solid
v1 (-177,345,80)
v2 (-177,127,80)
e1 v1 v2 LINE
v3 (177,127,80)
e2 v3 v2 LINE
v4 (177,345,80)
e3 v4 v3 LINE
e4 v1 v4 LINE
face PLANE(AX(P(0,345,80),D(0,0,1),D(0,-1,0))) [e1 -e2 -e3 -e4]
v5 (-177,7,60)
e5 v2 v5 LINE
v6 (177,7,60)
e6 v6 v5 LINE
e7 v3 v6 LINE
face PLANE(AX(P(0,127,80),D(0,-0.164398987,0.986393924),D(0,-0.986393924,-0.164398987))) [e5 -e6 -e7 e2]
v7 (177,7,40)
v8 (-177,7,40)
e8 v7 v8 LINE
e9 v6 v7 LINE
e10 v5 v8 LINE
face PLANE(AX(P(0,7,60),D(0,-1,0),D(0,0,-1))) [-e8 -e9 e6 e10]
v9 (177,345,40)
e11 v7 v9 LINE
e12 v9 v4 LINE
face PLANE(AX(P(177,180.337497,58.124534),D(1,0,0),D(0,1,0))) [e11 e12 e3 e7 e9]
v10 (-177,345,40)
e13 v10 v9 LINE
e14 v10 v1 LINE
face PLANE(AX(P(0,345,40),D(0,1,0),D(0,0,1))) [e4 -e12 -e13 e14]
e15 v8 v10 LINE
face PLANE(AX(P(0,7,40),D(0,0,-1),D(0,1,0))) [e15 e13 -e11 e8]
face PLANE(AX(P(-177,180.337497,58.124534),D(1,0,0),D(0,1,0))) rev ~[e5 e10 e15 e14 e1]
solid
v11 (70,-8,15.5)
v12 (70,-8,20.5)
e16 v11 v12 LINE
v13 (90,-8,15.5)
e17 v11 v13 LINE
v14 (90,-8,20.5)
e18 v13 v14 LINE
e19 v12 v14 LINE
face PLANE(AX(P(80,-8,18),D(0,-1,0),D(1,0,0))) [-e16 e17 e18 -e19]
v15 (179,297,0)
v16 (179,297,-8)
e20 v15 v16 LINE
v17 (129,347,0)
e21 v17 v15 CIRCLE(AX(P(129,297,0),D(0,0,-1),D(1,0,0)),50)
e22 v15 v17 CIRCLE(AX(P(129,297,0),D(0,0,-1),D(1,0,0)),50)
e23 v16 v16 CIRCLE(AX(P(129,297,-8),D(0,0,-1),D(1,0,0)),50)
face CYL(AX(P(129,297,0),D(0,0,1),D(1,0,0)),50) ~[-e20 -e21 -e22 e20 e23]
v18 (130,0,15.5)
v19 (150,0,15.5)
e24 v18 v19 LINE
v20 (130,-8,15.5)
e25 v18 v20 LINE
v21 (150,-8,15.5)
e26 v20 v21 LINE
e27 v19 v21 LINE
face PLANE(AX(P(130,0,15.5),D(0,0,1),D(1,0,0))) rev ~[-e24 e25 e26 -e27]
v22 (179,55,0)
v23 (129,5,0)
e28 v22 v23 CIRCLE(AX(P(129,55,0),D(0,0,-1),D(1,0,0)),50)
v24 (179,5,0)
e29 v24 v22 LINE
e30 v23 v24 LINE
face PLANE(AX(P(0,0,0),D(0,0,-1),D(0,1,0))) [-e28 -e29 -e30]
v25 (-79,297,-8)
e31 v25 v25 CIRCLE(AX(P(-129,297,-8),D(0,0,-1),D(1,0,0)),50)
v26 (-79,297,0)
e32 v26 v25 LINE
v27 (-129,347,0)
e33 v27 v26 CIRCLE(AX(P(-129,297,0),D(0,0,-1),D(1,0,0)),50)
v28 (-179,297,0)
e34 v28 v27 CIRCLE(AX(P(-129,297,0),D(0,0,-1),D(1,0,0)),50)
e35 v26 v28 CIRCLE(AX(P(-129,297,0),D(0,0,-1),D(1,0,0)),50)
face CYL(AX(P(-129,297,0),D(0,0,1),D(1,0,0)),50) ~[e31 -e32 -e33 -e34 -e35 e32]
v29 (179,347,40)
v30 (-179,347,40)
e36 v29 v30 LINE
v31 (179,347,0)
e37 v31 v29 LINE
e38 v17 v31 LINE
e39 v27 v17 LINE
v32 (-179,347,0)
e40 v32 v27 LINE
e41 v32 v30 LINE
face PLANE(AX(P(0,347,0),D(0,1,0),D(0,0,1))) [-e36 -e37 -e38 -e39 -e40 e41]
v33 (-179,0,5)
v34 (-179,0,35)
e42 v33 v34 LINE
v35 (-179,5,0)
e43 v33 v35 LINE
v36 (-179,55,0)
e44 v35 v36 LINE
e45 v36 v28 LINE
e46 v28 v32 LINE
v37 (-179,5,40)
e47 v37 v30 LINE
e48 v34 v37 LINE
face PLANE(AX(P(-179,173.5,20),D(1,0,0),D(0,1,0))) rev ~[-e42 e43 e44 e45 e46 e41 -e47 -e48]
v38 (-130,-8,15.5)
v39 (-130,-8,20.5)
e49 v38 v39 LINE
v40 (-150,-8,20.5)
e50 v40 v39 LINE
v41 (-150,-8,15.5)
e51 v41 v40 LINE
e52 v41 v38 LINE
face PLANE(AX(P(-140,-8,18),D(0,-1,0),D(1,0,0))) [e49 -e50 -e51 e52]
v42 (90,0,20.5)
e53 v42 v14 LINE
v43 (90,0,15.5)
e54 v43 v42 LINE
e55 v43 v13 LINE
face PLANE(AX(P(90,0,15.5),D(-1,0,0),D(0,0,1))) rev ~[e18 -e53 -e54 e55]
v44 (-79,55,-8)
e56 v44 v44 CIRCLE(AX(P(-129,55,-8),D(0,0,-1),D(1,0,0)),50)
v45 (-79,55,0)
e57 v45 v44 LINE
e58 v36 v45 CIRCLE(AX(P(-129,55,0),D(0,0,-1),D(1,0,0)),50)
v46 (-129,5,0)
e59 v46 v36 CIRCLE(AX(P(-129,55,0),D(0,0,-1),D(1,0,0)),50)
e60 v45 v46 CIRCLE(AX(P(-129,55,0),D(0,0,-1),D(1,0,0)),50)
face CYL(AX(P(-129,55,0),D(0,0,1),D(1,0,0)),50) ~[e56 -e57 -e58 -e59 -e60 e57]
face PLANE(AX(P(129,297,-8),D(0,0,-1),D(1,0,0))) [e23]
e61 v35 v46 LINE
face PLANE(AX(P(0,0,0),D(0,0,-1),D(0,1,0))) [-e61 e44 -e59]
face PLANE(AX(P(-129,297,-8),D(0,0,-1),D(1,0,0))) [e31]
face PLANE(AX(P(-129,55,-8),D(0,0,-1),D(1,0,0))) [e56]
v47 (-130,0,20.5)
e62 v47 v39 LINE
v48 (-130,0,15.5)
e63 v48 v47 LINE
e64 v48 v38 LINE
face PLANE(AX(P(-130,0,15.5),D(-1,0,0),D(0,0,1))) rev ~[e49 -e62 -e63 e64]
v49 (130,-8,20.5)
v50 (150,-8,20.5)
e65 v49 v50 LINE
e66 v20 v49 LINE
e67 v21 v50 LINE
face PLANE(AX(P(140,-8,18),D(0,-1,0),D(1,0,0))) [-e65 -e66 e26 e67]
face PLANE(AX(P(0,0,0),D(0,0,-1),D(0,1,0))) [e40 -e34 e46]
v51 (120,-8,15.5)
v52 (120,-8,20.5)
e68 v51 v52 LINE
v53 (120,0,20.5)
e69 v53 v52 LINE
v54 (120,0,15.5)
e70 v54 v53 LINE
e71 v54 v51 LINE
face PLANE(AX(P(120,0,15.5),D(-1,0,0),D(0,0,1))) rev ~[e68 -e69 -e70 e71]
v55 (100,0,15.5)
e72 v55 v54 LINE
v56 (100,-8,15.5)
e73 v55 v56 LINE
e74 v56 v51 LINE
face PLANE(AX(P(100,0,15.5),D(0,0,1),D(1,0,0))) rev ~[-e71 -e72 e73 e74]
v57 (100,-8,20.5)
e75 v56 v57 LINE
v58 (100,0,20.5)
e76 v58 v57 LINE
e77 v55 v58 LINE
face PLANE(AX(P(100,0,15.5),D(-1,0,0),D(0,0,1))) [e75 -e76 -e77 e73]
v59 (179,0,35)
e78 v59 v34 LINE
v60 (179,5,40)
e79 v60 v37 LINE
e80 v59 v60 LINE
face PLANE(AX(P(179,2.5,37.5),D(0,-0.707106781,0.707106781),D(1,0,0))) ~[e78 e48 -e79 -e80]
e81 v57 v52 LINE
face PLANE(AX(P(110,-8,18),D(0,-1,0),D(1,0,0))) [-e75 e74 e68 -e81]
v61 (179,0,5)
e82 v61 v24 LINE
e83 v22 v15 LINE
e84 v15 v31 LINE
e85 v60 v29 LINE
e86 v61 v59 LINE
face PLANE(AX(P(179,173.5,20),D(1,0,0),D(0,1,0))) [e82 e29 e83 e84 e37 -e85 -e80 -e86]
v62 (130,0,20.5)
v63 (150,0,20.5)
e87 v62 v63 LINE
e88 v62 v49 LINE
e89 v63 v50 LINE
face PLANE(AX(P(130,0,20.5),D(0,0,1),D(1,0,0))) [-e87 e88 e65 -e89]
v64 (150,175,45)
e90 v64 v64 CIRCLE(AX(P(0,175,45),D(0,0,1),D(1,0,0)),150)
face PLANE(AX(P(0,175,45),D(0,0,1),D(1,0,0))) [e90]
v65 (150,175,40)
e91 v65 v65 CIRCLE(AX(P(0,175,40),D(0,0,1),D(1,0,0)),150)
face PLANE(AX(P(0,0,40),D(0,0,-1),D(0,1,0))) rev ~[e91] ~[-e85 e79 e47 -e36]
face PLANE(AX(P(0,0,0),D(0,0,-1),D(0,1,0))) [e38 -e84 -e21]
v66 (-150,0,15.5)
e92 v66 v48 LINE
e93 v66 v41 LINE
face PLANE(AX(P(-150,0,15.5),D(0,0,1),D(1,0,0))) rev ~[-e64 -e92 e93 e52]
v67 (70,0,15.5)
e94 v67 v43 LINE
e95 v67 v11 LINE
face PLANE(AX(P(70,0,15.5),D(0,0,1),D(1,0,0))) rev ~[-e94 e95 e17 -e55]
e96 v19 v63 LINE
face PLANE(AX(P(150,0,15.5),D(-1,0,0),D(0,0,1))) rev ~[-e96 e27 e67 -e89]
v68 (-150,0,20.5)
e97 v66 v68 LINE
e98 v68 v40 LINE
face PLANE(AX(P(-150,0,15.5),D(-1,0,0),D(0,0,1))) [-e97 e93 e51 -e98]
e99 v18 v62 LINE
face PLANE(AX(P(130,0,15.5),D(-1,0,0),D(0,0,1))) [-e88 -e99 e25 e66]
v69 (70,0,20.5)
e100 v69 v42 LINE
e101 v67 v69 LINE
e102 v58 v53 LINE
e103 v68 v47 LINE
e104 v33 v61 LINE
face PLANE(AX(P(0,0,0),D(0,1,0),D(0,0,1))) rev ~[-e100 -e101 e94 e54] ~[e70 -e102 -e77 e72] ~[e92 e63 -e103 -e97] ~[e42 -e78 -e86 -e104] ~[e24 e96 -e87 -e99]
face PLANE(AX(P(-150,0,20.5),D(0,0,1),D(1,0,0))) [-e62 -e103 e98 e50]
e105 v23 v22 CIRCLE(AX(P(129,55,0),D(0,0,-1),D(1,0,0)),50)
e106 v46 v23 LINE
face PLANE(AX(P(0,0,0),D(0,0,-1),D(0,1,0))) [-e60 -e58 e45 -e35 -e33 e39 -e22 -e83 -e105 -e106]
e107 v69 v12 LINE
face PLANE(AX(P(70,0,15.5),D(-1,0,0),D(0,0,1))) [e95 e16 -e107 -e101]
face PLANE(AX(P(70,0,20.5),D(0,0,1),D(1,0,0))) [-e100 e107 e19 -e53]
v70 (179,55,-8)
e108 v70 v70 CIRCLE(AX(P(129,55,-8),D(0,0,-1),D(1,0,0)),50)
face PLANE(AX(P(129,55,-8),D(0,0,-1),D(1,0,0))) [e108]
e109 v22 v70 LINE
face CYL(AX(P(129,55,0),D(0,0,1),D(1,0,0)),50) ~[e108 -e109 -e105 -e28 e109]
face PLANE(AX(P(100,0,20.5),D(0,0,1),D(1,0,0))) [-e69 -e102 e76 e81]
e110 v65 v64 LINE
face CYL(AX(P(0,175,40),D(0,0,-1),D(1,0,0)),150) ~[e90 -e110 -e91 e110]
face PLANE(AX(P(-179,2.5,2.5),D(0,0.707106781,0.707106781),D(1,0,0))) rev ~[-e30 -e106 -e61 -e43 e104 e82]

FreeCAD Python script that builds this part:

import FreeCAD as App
import Part
import Sketcher


def edges_at(feature, points):
    """Names of the edges that pass closest to the given points."""
    edges = feature.Shape.Edges
    near = lambda p: min(range(len(edges)), key=lambda i: edges[i].distToShape(Part.Vertex(*p))[0])
    return sorted({f"Edge{near(p) + 1}" for p in points})

doc = App.newDocument("Part")
body = doc.addObject("PartDesign::Body", "Body")

# Sketch on YZ plane
sketch1 = doc.addObject("Sketcher::SketchObject", "Sketch")
body.addObject(sketch1)
sketch1.AttachmentSupport = (doc.YZ_Plane, [""])
sketch1.MapMode = "FlatFace"
sketch1.addGeometry([
    Part.LineSegment(App.Vector(0, 40, 0), App.Vector(0, 0, 0)),
    Part.LineSegment(App.Vector(0, 0, 0), App.Vector(347, 0, 0)),
    Part.LineSegment(App.Vector(347, 0, 0), App.Vector(347, 40, 0)),
    Part.LineSegment(App.Vector(347, 40, 0), App.Vector(0, 40, 0)),
], False)
sketch1.addConstraint([
    Sketcher.Constraint("Coincident", 0, 2, 1, 1),
    Sketcher.Constraint("Coincident", 1, 2, 2, 1),
    Sketcher.Constraint("Coincident", 2, 2, 3, 1),
    Sketcher.Constraint("Coincident", 3, 2, 0, 1),
    Sketcher.Constraint("Vertical", 0),
    Sketcher.Constraint("Horizontal", 1),
    Sketcher.Constraint("Vertical", 2),
    Sketcher.Constraint("Horizontal", 3),
    Sketcher.Constraint("Coincident", 0, 2, -1, 1),
    Sketcher.Constraint("DistanceX", 1, 1, 1, 2, 347.0),
    Sketcher.Constraint("DistanceY", 0, 2, 0, 1, 40.0),
])
pad1 = doc.addObject("PartDesign::Pad", "Pad")
body.addObject(pad1)
pad1.Profile = sketch1
pad1.Length = 358
pad1.Midplane = True
doc.recompute()

chamfer = doc.addObject("PartDesign::Chamfer", "Chamfer")
body.addObject(chamfer)
chamfer.Base = (pad1, edges_at(pad1, [(0, 0, 40), (0, 0, 0)]))
chamfer.Size = 5

# Sketch on XZ plane
sketch2 = doc.addObject("Sketcher::SketchObject", "Sketch001")
body.addObject(sketch2)
sketch2.AttachmentSupport = (doc.XZ_Plane, [""])
sketch2.MapMode = "FlatFace"
sketch2.addGeometry([
    Part.LineSegment(App.Vector(-150, 20, 0), App.Vector(-150, 16, 0)),  # 0
    Part.LineSegment(App.Vector(-150, 16, 0), App.Vector(-130, 16, 0)),  # 1
    Part.LineSegment(App.Vector(-130, 16, 0), App.Vector(-130, 20, 0)),  # 2
    Part.LineSegment(App.Vector(-130, 20, 0), App.Vector(-150, 20, 0)),  # 3
    Part.LineSegment(App.Vector(100, 20, 0), App.Vector(100, 16, 0)),  # 4
    Part.LineSegment(App.Vector(100, 16, 0), App.Vector(120, 16, 0)),  # 5
    Part.LineSegment(App.Vector(120, 16, 0), App.Vector(120, 20, 0)),  # 6
    Part.LineSegment(App.Vector(120, 20, 0), App.Vector(100, 20, 0)),  # 7
    Part.LineSegment(App.Vector(130, 20, 0), App.Vector(130, 16, 0)),  # 8
    Part.LineSegment(App.Vector(130, 16, 0), App.Vector(150, 16, 0)),  # 9
    Part.LineSegment(App.Vector(150, 16, 0), App.Vector(150, 20, 0)),  # 10
    Part.LineSegment(App.Vector(150, 20, 0), App.Vector(130, 20, 0)),  # 11
    Part.LineSegment(App.Vector(70, 20, 0), App.Vector(70, 16, 0)),  # 12
    Part.LineSegment(App.Vector(70, 16, 0), App.Vector(90, 16, 0)),  # 13
    Part.LineSegment(App.Vector(90, 16, 0), App.Vector(90, 20, 0)),  # 14
    Part.LineSegment(App.Vector(90, 20, 0), App.Vector(70, 20, 0)),  # 15
], False)
sketch2.addConstraint([
    Sketcher.Constraint("Coincident", 0, 2, 1, 1),
    Sketcher.Constraint("Coincident", 1, 2, 2, 1),
    Sketcher.Constraint("Coincident", 2, 2, 3, 1),
    Sketcher.Constraint("Coincident", 3, 2, 0, 1),
    Sketcher.Constraint("Coincident", 4, 2, 5, 1),
    Sketcher.Constraint("Coincident", 5, 2, 6, 1),
    Sketcher.Constraint("Coincident", 6, 2, 7, 1),
    Sketcher.Constraint("Coincident", 7, 2, 4, 1),
    Sketcher.Constraint("Coincident", 8, 2, 9, 1),
    Sketcher.Constraint("Coincident", 9, 2, 10, 1),
    Sketcher.Constraint("Coincident", 10, 2, 11, 1),
    Sketcher.Constraint("Coincident", 11, 2, 8, 1),
    Sketcher.Constraint("Coincident", 12, 2, 13, 1),
    Sketcher.Constraint("Coincident", 13, 2, 14, 1),
    Sketcher.Constraint("Coincident", 14, 2, 15, 1),
    Sketcher.Constraint("Coincident", 15, 2, 12, 1),
    Sketcher.Constraint("Vertical", 0),
    Sketcher.Constraint("Horizontal", 1),
    Sketcher.Constraint("Vertical", 2),
    Sketcher.Constraint("Horizontal", 3),
    Sketcher.Constraint("Vertical", 4),
    Sketcher.Constraint("Horizontal", 5),
    Sketcher.Constraint("Vertical", 6),
    Sketcher.Constraint("Horizontal", 7),
    Sketcher.Constraint("Vertical", 8),
    Sketcher.Constraint("Horizontal", 9),
    Sketcher.Constraint("Vertical", 10),
    Sketcher.Constraint("Horizontal", 11),
    Sketcher.Constraint("Vertical", 12),
    Sketcher.Constraint("Horizontal", 13),
    Sketcher.Constraint("Vertical", 14),
    Sketcher.Constraint("Horizontal", 15),
    Sketcher.Constraint("Symmetric", 1, 2, 8, 2, -2),
    Sketcher.Constraint("Symmetric", 3, 2, 10, 2, -2),
    Sketcher.Constraint("Horizontal", 1, 2, 4, 2),
    Sketcher.Constraint("Horizontal", 3, 2, 6, 2),
    Sketcher.Constraint("Horizontal", 9, 2, 12, 2),
    Sketcher.Constraint("Horizontal", 11, 2, 14, 2),
    Sketcher.Constraint("Equal", 3, 5),
    Sketcher.Constraint("Equal", 11, 13),
    Sketcher.Constraint("DistanceX", 1, 1, 1, 2, 20.0),
    Sketcher.Constraint("DistanceY", 0, 2, 0, 1, 5.0),
    Sketcher.Constraint("DistanceX", 0, 2, -1, 1, 150.0),
    Sketcher.Constraint("DistanceX", -1, 1, 4, 2, 100.0),
    Sketcher.Constraint("DistanceX", -1, 1, 12, 2, 70.0),
    Sketcher.Constraint("DistanceY", -1, 1, 0, 2, 15.5),
])
pad2 = doc.addObject("PartDesign::Pad", "Pad001")
body.addObject(pad2)
pad2.Profile = sketch2
pad2.Length = 8

# Sketch on XY plane
sketch3 = doc.addObject("Sketcher::SketchObject", "Sketch002")
body.addObject(sketch3)
sketch3.AttachmentSupport = (doc.XY_Plane, [""])
sketch3.MapMode = "FlatFace"
sketch3.AttachmentOffset = App.Placement(App.Vector(0, 0, 40), App.Rotation())
sketch3.addGeometry(Part.Circle(App.Vector(0, 175, 0), App.Vector(0, 0, 1), 150), False)
sketch3.addConstraint([
    Sketcher.Constraint("PointOnObject", 0, 3, -2),
    Sketcher.Constraint("Diameter", 0, 300.0),
    Sketcher.Constraint("DistanceY", -1, 1, 0, 3, 175.0),
])
pad3 = doc.addObject("PartDesign::Pad", "Pad002")
body.addObject(pad3)
pad3.Profile = sketch3
pad3.Length = 5

# Sketch on XY plane
sketch4 = doc.addObject("Sketcher::SketchObject", "Sketch003")
body.addObject(sketch4)
sketch4.AttachmentSupport = (doc.XY_Plane, [""])
sketch4.MapMode = "FlatFace"
sketch4.addGeometry([
    Part.Circle(App.Vector(129, 55, 0), App.Vector(0, 0, 1), 50),
    Part.Circle(App.Vector(-129, 55, 0), App.Vector(0, 0, 1), 50),
    Part.Circle(App.Vector(-129, 297, 0), App.Vector(0, 0, 1), 50),
    Part.Circle(App.Vector(129, 297, 0), App.Vector(0, 0, 1), 50),
], False)
sketch4.addConstraint([
    Sketcher.Constraint("Equal", 0, 1),
    Sketcher.Constraint("Equal", 1, 2),
    Sketcher.Constraint("Equal", 2, 3),
    Sketcher.Constraint("Symmetric", 0, 3, 1, 3, -2),
    Sketcher.Constraint("Symmetric", 2, 3, 3, 3, -2),
    Sketcher.Constraint("Vertical", 1, 3, 2, 3),
    Sketcher.Constraint("Diameter", 0, 100.0),
    Sketcher.Constraint("DistanceX", -1, 1, 0, 3, 129.0),
    Sketcher.Constraint("DistanceY", -1, 1, 0, 3, 55.0),
    Sketcher.Constraint("DistanceY", -1, 1, 2, 3, 297.0),
])
pad4 = doc.addObject("PartDesign::Pad", "Pad003")
body.addObject(pad4)
pad4.Profile = sketch4
pad4.Length = 8
pad4.Reversed = True
body2 = doc.addObject("PartDesign::Body", "Body001")

# Sketch on YZ plane
sketch5 = doc.addObject("Sketcher::SketchObject", "Sketch004")
body2.addObject(sketch5)
sketch5.AttachmentSupport = (doc.getObject("YZ_Plane001"), [""])
sketch5.MapMode = "FlatFace"
sketch5.addGeometry([
    Part.LineSegment(App.Vector(7, 40, 0), App.Vector(345, 40, 0)),  # 0
    Part.LineSegment(App.Vector(345, 40, 0), App.Vector(345, 80, 0)),  # 1
    Part.LineSegment(App.Vector(345, 80, 0), App.Vector(127, 80, 0)),  # 2
    Part.LineSegment(App.Vector(127, 80, 0), App.Vector(7, 60, 0)),  # 3
    Part.LineSegment(App.Vector(7, 60, 0), App.Vector(7, 40, 0)),  # 4
], False)
sketch5.addConstraint([
    Sketcher.Constraint("Coincident", 0, 2, 1, 1),
    Sketcher.Constraint("Coincident", 1, 2, 2, 1),
    Sketcher.Constraint("Coincident", 2, 2, 3, 1),
    Sketcher.Constraint("Coincident", 3, 2, 4, 1),
    Sketcher.Constraint("Coincident", 4, 2, 0, 1),
    Sketcher.Constraint("Horizontal", 0),
    Sketcher.Constraint("Vertical", 1),
    Sketcher.Constraint("Horizontal", 2),
    Sketcher.Constraint("Vertical", 4),
    Sketcher.Constraint("DistanceX", 0, 1, 0, 2, 338.0),
    Sketcher.Constraint("DistanceX", 2, 2, 2, 1, 218.0),
    Sketcher.Constraint("DistanceY", 1, 1, 1, 2, 40.0),
    Sketcher.Constraint("DistanceY", 4, 2, 4, 1, 20.0),
    Sketcher.Constraint("DistanceX", -1, 1, 0, 2, 345.0),
    Sketcher.Constraint("DistanceY", -1, 1, 0, 2, 40.0),
])
pad5 = doc.addObject("PartDesign::Pad", "Pad004")
body2.addObject(pad5)
pad5.Profile = sketch5
pad5.Length = 354
pad5.Midplane = True

doc.recompute()
